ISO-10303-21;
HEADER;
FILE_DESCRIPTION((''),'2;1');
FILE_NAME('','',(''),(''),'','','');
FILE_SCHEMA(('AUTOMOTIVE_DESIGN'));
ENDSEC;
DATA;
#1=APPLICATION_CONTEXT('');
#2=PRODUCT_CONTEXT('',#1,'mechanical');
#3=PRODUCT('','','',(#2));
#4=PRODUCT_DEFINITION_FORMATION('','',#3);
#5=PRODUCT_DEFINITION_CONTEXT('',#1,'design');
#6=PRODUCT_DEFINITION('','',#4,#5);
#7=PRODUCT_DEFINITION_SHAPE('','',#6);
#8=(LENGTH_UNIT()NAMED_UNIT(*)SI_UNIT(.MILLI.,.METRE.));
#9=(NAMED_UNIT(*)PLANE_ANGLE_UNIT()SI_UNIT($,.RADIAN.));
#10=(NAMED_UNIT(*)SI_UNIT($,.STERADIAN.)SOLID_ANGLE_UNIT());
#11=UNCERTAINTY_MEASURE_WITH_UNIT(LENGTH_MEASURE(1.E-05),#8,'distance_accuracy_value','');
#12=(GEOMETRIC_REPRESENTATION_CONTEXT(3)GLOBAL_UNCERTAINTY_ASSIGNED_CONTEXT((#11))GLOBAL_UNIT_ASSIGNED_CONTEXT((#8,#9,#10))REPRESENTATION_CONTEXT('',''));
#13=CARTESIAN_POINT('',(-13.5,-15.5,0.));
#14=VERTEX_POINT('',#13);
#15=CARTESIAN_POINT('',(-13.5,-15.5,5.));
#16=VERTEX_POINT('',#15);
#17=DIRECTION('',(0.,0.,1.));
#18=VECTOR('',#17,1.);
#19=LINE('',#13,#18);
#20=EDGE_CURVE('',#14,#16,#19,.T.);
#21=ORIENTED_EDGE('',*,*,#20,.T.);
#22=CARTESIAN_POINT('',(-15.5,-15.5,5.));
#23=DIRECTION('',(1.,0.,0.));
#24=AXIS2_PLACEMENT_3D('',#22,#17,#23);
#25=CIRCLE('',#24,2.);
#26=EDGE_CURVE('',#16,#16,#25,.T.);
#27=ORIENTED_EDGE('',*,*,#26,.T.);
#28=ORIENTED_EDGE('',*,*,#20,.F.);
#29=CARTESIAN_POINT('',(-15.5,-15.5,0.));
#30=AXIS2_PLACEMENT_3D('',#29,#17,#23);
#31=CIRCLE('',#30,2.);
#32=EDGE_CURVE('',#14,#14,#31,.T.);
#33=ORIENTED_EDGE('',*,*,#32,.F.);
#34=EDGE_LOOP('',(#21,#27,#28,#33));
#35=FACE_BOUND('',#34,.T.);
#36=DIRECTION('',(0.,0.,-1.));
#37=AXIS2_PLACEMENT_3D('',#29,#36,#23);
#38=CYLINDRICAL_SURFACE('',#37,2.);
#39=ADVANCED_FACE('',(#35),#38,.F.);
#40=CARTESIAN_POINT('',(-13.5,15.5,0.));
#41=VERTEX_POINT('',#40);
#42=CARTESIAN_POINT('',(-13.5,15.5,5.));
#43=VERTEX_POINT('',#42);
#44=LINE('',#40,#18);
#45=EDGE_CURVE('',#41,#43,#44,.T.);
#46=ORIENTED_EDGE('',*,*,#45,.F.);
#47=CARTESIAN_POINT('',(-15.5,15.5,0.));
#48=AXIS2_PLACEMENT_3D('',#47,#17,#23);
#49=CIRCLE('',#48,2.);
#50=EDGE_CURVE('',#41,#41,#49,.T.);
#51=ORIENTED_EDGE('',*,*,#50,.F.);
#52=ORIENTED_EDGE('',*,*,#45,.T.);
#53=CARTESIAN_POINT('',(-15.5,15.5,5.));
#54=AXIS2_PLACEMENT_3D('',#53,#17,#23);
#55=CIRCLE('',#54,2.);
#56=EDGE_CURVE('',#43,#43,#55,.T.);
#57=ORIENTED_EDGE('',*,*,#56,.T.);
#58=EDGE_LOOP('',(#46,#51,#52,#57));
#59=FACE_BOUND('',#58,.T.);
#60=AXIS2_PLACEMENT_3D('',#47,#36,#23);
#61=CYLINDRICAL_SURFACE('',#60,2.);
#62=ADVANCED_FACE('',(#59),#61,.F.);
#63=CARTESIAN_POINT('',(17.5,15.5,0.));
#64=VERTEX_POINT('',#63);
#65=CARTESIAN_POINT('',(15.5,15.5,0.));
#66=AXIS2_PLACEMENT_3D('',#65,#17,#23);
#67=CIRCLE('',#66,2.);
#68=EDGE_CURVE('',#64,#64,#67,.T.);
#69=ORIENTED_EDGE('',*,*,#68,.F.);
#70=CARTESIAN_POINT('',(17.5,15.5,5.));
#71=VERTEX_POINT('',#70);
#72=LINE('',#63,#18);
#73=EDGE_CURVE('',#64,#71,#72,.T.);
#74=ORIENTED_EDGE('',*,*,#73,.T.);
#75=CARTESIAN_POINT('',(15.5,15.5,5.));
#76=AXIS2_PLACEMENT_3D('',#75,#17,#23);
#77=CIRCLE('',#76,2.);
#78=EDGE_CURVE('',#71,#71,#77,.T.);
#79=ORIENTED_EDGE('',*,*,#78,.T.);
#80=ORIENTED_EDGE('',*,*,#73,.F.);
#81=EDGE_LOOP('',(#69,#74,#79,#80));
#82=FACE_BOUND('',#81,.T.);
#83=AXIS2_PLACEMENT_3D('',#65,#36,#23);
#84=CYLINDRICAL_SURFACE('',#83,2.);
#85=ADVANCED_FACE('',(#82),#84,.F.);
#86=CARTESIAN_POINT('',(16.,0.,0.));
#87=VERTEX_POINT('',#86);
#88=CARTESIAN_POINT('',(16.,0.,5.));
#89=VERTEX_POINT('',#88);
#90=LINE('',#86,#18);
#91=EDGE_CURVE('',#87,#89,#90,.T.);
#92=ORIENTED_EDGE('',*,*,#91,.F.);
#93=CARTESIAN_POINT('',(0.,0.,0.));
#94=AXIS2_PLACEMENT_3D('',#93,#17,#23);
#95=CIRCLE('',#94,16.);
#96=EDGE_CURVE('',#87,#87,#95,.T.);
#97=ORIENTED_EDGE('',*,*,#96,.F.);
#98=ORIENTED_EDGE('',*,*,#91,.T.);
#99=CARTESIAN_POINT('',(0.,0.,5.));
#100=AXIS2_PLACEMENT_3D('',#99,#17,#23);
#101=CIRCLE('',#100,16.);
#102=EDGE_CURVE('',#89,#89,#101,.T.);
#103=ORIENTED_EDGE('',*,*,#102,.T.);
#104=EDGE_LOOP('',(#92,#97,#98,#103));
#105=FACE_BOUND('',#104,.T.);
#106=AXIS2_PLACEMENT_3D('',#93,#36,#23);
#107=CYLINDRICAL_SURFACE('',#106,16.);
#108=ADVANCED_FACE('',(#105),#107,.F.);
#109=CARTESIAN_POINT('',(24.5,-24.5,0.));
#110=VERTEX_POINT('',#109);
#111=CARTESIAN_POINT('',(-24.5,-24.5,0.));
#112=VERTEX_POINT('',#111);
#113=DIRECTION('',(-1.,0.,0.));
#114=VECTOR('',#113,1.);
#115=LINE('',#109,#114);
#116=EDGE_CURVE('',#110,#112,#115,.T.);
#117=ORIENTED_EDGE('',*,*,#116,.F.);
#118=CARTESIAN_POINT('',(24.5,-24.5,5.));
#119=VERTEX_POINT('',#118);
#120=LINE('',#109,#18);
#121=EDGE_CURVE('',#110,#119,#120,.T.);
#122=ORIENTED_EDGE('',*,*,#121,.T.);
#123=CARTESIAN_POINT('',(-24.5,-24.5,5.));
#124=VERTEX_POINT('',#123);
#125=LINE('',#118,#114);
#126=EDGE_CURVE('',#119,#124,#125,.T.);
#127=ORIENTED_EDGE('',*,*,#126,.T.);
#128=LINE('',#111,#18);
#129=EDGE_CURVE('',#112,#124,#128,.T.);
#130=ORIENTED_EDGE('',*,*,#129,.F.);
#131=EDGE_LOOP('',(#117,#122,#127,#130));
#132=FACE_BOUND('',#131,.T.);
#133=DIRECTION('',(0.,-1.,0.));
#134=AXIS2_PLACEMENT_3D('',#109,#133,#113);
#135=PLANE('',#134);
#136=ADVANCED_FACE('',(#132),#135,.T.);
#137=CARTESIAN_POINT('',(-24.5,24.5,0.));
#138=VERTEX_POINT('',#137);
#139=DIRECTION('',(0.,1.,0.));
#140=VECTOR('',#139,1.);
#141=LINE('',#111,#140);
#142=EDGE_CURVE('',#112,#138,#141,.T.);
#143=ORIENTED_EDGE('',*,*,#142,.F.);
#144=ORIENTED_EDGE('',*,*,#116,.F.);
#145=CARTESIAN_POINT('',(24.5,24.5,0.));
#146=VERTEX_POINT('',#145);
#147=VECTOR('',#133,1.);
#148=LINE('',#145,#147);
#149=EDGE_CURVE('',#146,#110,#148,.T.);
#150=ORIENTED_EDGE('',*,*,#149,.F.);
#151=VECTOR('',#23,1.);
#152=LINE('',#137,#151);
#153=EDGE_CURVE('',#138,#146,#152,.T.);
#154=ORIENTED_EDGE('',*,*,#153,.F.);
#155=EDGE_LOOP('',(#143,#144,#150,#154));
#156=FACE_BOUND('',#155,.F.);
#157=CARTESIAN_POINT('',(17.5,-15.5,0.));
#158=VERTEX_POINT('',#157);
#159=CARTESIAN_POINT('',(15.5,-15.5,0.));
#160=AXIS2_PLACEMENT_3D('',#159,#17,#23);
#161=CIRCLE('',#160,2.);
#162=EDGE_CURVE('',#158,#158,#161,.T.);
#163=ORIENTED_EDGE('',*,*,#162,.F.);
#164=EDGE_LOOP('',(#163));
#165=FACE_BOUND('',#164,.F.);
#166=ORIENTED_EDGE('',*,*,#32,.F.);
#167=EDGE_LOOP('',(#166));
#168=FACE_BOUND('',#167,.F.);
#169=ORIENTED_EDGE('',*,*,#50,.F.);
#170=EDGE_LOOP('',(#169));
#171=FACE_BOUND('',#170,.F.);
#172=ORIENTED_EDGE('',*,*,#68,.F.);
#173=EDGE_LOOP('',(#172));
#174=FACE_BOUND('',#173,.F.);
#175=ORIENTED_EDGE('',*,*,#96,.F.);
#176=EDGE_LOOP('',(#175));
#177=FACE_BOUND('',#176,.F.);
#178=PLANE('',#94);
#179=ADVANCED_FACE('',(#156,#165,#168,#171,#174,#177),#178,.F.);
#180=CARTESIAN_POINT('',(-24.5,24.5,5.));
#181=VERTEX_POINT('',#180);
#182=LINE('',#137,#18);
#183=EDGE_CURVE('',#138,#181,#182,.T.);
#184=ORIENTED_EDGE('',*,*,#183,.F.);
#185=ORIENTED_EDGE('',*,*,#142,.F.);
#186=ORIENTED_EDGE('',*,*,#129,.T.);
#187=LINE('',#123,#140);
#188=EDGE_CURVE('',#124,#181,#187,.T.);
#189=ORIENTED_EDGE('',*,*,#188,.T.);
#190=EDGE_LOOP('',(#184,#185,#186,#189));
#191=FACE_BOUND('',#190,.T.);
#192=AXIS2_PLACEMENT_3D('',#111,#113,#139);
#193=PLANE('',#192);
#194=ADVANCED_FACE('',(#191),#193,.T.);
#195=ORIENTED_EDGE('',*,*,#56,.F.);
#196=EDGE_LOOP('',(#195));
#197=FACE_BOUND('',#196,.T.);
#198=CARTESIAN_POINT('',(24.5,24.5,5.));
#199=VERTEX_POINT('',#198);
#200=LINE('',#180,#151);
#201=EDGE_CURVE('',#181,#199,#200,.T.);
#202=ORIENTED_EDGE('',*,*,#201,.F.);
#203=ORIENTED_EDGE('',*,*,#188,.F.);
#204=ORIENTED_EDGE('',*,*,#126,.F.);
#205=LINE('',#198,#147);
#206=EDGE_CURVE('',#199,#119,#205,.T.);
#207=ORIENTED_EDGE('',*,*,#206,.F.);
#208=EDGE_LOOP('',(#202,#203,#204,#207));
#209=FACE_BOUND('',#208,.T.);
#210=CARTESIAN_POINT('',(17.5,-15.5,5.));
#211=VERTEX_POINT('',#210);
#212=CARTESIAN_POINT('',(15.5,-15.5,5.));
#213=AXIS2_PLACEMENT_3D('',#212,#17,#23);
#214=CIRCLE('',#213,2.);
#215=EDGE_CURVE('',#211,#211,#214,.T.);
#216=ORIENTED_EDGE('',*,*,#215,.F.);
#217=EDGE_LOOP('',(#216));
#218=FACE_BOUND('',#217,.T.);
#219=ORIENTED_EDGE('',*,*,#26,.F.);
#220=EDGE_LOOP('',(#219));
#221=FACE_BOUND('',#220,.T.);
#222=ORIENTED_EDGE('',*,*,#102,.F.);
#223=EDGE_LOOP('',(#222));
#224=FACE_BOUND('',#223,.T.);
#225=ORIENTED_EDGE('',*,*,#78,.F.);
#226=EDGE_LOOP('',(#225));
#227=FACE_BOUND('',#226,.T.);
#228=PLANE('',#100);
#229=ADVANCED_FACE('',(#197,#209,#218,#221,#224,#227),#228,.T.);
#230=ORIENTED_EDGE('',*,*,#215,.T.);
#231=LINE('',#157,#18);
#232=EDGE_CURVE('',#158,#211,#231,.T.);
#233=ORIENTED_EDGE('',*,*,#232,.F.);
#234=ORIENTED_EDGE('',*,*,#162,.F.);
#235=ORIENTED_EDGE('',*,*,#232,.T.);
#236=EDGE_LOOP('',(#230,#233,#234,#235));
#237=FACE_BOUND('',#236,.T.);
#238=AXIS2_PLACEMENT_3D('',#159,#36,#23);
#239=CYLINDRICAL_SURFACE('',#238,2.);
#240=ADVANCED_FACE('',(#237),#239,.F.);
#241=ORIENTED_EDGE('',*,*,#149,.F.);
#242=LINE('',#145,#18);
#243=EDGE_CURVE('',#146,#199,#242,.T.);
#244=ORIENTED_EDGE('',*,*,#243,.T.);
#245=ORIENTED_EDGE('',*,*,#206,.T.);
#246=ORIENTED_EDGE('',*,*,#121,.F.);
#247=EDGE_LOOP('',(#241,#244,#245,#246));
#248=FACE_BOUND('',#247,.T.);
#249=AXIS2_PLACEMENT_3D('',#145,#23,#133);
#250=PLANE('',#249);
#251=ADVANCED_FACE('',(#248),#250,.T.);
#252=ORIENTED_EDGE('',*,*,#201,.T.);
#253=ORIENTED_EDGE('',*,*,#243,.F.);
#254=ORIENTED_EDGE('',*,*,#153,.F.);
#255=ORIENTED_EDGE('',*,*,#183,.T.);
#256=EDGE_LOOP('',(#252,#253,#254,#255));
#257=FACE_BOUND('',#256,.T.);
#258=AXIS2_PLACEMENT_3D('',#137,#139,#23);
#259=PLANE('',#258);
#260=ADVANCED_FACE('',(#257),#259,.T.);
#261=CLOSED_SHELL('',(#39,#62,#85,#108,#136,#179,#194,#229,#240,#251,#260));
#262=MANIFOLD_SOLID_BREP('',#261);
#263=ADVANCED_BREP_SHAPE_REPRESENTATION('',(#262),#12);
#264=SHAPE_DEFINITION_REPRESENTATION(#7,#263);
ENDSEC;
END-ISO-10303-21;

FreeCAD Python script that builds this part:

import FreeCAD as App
import Part
import Sketcher
from FreeCAD import Vector


def add_polygon(sketch, points):
    """Adds a closed chain of lines whose ends are joined by coincident constraints."""
    first, n = sketch.GeometryCount, len(points)
    for a, b in zip(points, points[1:] + points[:1]):
        sketch.addGeometry(Part.LineSegment(App.Vector(*a, 0), App.Vector(*b, 0)), False)
    for i in range(n):
        sketch.addConstraint(Sketcher.Constraint("Coincident", first + i, 2, first + (i + 1) % n, 1))

doc = App.newDocument("Part")
body = doc.addObject("PartDesign::Body", "Body")

sketch1 = doc.addObject("Sketcher::SketchObject", "Sketch")
body.addObject(sketch1)
sketch1.AttachmentSupport = (doc.XY_Plane, [""])
sketch1.MapMode = "FlatFace"
add_polygon(sketch1, [(24.5, 24.5), (-24.5, 24.5), (-24.5, -24.5), (24.5, -24.5)])
sketch1.addGeometry(Part.Circle(Vector(-15.5, -15.5, 0), Vector(0, 0, 1), 2), False)
sketch1.addGeometry(Part.Circle(Vector(0, 0, 0), Vector(0, 0, 1), 16), False)
sketch1.addGeometry(Part.Circle(Vector(15.5, -15.5, 0), Vector(0, 0, 1), 2), False)
sketch1.addGeometry(Part.Circle(Vector(-15.5, 15.5, 0), Vector(0, 0, 1), 2), False)
sketch1.addGeometry(Part.Circle(Vector(15.5, 15.5, 0), Vector(0, 0, 1), 2), False)
sketch1.addConstraint(Sketcher.Constraint("Horizontal", 0))
sketch1.addConstraint(Sketcher.Constraint("Vertical", 1))
sketch1.addConstraint(Sketcher.Constraint("Horizontal", 2))
sketch1.addConstraint(Sketcher.Constraint("Vertical", 3))
sketch1.addConstraint(Sketcher.Constraint("Coincident", 5, 3, -1, 1))
sketch1.addConstraint(Sketcher.Constraint("Equal", 4, 6))
sketch1.addConstraint(Sketcher.Constraint("Equal", 6, 7))
sketch1.addConstraint(Sketcher.Constraint("Equal", 7, 8))
sketch1.addConstraint(Sketcher.Constraint("Symmetric", 6, 3, 7, 3, -1, 1))
sketch1.addConstraint(Sketcher.Constraint("Symmetric", 4, 3, 8, 3, -1, 1))
sketch1.addConstraint(Sketcher.Constraint("Symmetric", 0, 2, 2, 2, -1, 1))
sketch1.addConstraint(Sketcher.Constraint("Symmetric", 4, 3, 6, 3, -2))
sketch1.addConstraint(Sketcher.Constraint("Equal", 2, 1))
sketch1.addConstraint(Sketcher.Constraint("Diameter", 4, 4.0))
sketch1.addConstraint(Sketcher.Constraint("Diameter", 5, 32.0))
sketch1.addConstraint(Sketcher.Constraint("DistanceX", 0, 2, 0, 1, 49.0))
sketch1.addConstraint(Sketcher.Constraint("DistanceX", 0, 2, 7, 3, 9.0))
sketch1.addConstraint(Sketcher.Constraint("DistanceY", 7, 3, 0, 2, 9.0))
pad1 = doc.addObject("PartDesign::Pad", "Pad")
body.addObject(pad1)
pad1.Profile = sketch1
pad1.Length = 5

doc.recompute()
